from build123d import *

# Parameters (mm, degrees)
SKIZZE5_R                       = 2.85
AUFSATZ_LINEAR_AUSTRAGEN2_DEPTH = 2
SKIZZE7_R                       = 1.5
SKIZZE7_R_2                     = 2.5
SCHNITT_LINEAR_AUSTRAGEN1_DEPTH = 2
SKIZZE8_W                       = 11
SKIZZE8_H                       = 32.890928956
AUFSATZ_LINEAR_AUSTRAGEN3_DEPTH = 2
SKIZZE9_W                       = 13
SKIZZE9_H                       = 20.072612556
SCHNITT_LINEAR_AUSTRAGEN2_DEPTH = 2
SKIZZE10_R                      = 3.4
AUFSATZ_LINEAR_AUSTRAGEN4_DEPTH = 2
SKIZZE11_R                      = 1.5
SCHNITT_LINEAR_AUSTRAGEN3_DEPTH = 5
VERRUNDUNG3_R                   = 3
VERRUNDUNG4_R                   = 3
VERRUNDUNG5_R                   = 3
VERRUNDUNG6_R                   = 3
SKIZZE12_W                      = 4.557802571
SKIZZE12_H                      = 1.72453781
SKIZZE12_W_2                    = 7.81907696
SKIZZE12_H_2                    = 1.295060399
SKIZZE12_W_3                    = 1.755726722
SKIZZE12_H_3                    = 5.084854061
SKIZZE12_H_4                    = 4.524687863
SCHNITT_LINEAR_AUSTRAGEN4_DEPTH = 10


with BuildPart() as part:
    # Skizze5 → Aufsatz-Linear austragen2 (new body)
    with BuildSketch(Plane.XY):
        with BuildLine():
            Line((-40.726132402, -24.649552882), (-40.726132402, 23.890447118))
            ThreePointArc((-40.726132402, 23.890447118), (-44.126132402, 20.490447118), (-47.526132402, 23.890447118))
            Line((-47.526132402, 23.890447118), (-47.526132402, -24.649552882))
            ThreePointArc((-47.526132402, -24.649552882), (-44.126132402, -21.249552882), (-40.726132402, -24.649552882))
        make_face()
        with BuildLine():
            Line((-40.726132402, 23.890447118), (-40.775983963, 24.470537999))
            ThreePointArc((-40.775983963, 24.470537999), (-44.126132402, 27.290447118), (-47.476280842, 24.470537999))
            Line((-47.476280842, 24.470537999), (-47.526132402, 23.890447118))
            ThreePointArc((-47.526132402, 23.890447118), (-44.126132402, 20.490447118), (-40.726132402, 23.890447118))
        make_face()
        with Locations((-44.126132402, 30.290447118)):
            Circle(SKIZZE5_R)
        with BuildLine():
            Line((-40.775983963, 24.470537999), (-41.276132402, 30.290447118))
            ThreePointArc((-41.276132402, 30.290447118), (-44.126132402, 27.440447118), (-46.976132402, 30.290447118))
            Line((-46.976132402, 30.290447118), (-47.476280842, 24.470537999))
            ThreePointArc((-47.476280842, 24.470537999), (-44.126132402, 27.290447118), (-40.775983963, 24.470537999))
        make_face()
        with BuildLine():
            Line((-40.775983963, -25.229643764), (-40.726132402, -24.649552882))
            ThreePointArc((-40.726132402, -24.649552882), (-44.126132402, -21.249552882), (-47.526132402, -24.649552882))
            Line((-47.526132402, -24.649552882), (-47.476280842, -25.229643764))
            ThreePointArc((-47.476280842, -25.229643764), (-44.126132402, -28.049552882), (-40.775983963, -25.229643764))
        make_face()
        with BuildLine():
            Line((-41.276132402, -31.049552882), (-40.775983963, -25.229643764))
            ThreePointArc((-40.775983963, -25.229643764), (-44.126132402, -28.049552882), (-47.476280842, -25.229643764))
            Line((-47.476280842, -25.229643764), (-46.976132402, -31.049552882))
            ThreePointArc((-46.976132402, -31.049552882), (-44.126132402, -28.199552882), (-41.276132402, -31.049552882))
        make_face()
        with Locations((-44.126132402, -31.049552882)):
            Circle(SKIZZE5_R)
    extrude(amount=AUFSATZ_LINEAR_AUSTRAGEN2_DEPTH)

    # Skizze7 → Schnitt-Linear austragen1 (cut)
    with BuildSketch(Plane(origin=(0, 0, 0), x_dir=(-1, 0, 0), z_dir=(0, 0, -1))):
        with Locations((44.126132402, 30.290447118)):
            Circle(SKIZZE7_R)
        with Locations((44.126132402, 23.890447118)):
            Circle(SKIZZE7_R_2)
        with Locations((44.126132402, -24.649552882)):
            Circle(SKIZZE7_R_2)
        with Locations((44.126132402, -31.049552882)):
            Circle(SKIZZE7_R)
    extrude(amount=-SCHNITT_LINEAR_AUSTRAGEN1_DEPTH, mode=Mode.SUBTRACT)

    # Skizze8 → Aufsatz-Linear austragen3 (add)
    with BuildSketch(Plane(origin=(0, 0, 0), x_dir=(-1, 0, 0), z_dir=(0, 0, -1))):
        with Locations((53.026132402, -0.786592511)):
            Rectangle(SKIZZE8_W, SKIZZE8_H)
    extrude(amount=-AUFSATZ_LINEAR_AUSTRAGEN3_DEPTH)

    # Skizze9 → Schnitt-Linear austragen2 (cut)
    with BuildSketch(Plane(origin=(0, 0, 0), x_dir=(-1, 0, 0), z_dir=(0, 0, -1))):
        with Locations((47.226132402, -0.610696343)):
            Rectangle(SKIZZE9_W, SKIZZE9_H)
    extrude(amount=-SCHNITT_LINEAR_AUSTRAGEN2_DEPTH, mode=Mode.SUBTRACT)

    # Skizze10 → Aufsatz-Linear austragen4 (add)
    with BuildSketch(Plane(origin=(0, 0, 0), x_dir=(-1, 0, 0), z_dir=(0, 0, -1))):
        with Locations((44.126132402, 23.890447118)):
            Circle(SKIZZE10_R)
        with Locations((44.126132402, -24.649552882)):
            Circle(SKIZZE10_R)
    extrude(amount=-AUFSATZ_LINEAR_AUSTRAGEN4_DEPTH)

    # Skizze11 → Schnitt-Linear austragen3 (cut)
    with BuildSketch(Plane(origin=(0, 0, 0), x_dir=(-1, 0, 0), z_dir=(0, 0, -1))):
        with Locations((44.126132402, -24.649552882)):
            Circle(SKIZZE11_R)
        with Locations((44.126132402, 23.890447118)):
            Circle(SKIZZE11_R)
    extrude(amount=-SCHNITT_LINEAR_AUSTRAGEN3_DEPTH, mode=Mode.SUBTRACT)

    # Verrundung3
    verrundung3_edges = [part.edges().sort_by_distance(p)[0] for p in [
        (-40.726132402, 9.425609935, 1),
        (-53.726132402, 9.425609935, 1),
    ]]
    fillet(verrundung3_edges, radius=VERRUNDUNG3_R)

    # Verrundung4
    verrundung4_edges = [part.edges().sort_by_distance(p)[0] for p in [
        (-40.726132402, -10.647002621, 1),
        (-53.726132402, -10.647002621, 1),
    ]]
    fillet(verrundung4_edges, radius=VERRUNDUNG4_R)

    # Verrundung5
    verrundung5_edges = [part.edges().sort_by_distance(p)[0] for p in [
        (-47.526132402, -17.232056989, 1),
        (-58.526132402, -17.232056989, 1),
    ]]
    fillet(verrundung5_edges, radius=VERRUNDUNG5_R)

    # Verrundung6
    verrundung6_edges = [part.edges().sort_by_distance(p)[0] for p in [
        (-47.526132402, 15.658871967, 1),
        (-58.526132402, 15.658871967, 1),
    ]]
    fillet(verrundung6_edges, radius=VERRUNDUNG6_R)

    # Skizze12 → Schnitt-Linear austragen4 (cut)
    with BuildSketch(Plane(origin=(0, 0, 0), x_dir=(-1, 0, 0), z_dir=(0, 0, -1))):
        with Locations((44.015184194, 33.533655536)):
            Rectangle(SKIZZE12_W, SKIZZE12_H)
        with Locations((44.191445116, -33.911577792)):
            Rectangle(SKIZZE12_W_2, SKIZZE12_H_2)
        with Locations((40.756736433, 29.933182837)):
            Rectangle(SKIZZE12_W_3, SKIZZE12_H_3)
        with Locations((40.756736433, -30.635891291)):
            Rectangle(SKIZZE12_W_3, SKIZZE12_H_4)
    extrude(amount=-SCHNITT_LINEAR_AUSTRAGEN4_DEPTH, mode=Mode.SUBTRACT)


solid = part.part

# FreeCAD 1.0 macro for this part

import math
import FreeCAD as App
import Part
import Sketcher

V = App.Vector
Q = App.Units.Quantity


def edges_at(feature, points):
    """Names of the edges that pass closest to the given points."""
    edges = feature.Shape.Edges
    near = lambda p: min(range(len(edges)), key=lambda i: edges[i].distToShape(Part.Vertex(*p))[0])
    return sorted({f"Edge{near(p) + 1}" for p in points})

doc = App.newDocument("Part")
params = doc.addObject("Spreadsheet::Sheet", "Params")
for row, (alias, value) in enumerate([
    ("sketch1_radius", "2.85 mm"),
    ("sketch1_height", "48.54 mm"),
    ("pad1_length", "2 mm"),
    ("sketch2_diameter", "3 mm"),
    ("sketch2_diameter2", "5 mm"),
    ("pocket1_length", "2 mm"),
    ("sketch3_width", "11 mm"),
    ("pad2_length", "2 mm"),
    ("sketch4_width", "13 mm"),
    ("pocket2_length", "2 mm"),
    ("sketch5_diameter", "6.8 mm"),
    ("pad3_length", "2 mm"),
    ("sketch6_diameter", "3 mm"),
    ("pocket3_length", "5 mm"),
    ("fillet_radius", "3 mm"),
    ("fillet2_radius", "3 mm"),
    ("fillet3_radius", "3 mm"),
    ("fillet4_radius", "3 mm"),
    ("pocket4_length", "10 mm"),
], start=1):
    params.set(f"A{row}", alias)
    params.set(f"B{row}", "=" + value)
    params.setAlias(f"B{row}", alias)

body = doc.addObject("PartDesign::Body", "Body")

# Sketch on XY plane
sketch1 = body.newObject("Sketcher::SketchObject", "Sketch")
sketch1.AttachmentSupport = (doc.getObject("XY_Plane"), [""])
sketch1.MapMode = "FlatFace"
sketch1.addGeometry(Part.LineSegment(V(-40.7, -24.6, 0), V(-40.7, 23.9, 0)), False)
sketch1.addGeometry(Part.LineSegment(V(-40.7, 23.9, 0), V(-40.8, 24.5, 0)), False)
sketch1.addGeometry(Part.LineSegment(V(-40.8, 24.5, 0), V(-41.3, 30.3, 0)), False)
sketch1.addGeometry(Part.ArcOfCircle(Part.Circle(V(-44.1, 30.3, 0), V(0, 0, 1), 2.9), math.radians(0), math.radians(180)), False)
sketch1.addGeometry(Part.LineSegment(V(-47, 30.3, 0), V(-47.5, 24.5, 0)), False)
sketch1.addGeometry(Part.LineSegment(V(-47.5, 24.5, 0), V(-47.5, 23.9, 0)), False)
sketch1.addGeometry(Part.LineSegment(V(-47.5, 23.9, 0), V(-47.5, -24.6, 0)), False)
sketch1.addGeometry(Part.LineSegment(V(-47.5, -24.6, 0), V(-47.5, -25.2, 0)), False)
sketch1.addGeometry(Part.LineSegment(V(-47.5, -25.2, 0), V(-47, -31, 0)), False)
sketch1.addGeometry(Part.ArcOfCircle(Part.Circle(V(-44.1, -31, 0), V(0, 0, 1), 2.9), math.radians(180), math.radians(360)), False)
sketch1.addGeometry(Part.LineSegment(V(-41.3, -31, 0), V(-40.8, -25.2, 0)), False)
sketch1.addGeometry(Part.LineSegment(V(-40.8, -25.2, 0), V(-40.7, -24.6, 0)), False)
sketch1.addConstraint(Sketcher.Constraint("Coincident", 0, 2, 1, 1))
sketch1.addConstraint(Sketcher.Constraint("Coincident", 1, 2, 2, 1))
sketch1.addConstraint(Sketcher.Constraint("Coincident", 2, 2, 3, 1))
sketch1.addConstraint(Sketcher.Constraint("Coincident", 3, 2, 4, 1))
sketch1.addConstraint(Sketcher.Constraint("Coincident", 4, 2, 5, 1))
sketch1.addConstraint(Sketcher.Constraint("Coincident", 5, 2, 6, 1))
sketch1.addConstraint(Sketcher.Constraint("Coincident", 6, 2, 7, 1))
sketch1.addConstraint(Sketcher.Constraint("Coincident", 7, 2, 8, 1))
sketch1.addConstraint(Sketcher.Constraint("Coincident", 8, 2, 9, 1))
sketch1.addConstraint(Sketcher.Constraint("Coincident", 9, 2, 10, 1))
sketch1.addConstraint(Sketcher.Constraint("Coincident", 10, 2, 11, 1))
sketch1.addConstraint(Sketcher.Constraint("Coincident", 11, 2, 0, 1))
sketch1.addConstraint(Sketcher.Constraint("Vertical", 0))
sketch1.addConstraint(Sketcher.Constraint("Vertical", 6))
sketch1.addConstraint(Sketcher.Constraint("Equal", 3, 9))
sketch1.addConstraint(Sketcher.Constraint("Parallel", 1, 2))
sketch1.addConstraint(Sketcher.Constraint("Parallel", 4, 5))
sketch1.addConstraint(Sketcher.Constraint("Parallel", 2, 7))
sketch1.addConstraint(Sketcher.Constraint("Parallel", 7, 8))
sketch1.addConstraint(Sketcher.Constraint("Parallel", 5, 10))
sketch1.addConstraint(Sketcher.Constraint("Parallel", 10, 11))
sketch1.addConstraint(Sketcher.Constraint("Horizontal", 3, 3, 2, 2))
sketch1.addConstraint(Sketcher.Constraint("Horizontal", 2, 2, 3, 2))
sketch1.addConstraint(Sketcher.Constraint("Horizontal", 1, 2, 4, 2))
sketch1.addConstraint(Sketcher.Constraint("Horizontal", 0, 2, 5, 2))
sketch1.addConstraint(Sketcher.Constraint("Horizontal", 9, 3, 8, 2))
sketch1.addConstraint(Sketcher.Constraint("Horizontal", 8, 2, 9, 2))
sketch1.addConstraint(Sketcher.Constraint("Horizontal", 7, 2, 10, 2))
sketch1.addConstraint(Sketcher.Constraint("Horizontal", 6, 2, 11, 2))
sketch1.addConstraint(Sketcher.Constraint("Vertical", 3, 3, 9, 3))
sketch1.addConstraint(Sketcher.Constraint("Vertical", 4, 2, 7, 2))
sketch1.addConstraint(Sketcher.Constraint("Radius", 3, Q("2.85 mm")))
sketch1.addConstraint(Sketcher.Constraint("DistanceY", 0, 1, 0, 2, Q("48.54 mm")))
sketch1.addConstraint(Sketcher.Constraint("DistanceX", 3, 3, 0, 2, Q("3.4 mm")))
sketch1.addConstraint(Sketcher.Constraint("DistanceY", 0, 2, 3, 3, Q("6.4 mm")))
sketch1.addConstraint(Sketcher.Constraint("Distance", 1, Q("0.582229 mm")))
sketch1.addConstraint(Sketcher.Constraint("DistanceX", 4, 2, -1, 1, Q("47.476281 mm")))
sketch1.addConstraint(Sketcher.Constraint("DistanceY", -1, 1, 3, 3, Q("30.290447 mm")))
sketch1.setExpression("Constraints[31]", "Params.sketch1_radius")
sketch1.setExpression("Constraints[32]", "Params.sketch1_height")
pad1 = body.newObject("PartDesign::Pad", "Pad")
pad1.Profile = sketch1
pad1.setExpression("Length", "Params.pad1_length")

# Sketch on XY plane
sketch2 = body.newObject("Sketcher::SketchObject", "Sketch001")
sketch2.AttachmentSupport = (doc.getObject("XY_Plane"), [""])
sketch2.MapMode = "FlatFace"
sketch2.addGeometry(Part.Circle(V(-44.1, 30.3, 0), V(0, 0, 1), 1.5), False)
sketch2.addGeometry(Part.Circle(V(-44.1, 23.9, 0), V(0, 0, 1), 2.5), False)
sketch2.addGeometry(Part.Circle(V(-44.1, -24.6, 0), V(0, 0, 1), 2.5), False)
sketch2.addGeometry(Part.Circle(V(-44.1, -31, 0), V(0, 0, 1), 1.5), False)
sketch2.addConstraint(Sketcher.Constraint("Equal", 1, 2))
sketch2.addConstraint(Sketcher.Constraint("Equal", 0, 3))
sketch2.addConstraint(Sketcher.Constraint("Vertical", 0, 3, 1, 3))
sketch2.addConstraint(Sketcher.Constraint("Vertical", 1, 3, 2, 3))
sketch2.addConstraint(Sketcher.Constraint("Vertical", 2, 3, 3, 3))
sketch2.addConstraint(Sketcher.Constraint("Diameter", 0, Q("3 mm")))
sketch2.addConstraint(Sketcher.Constraint("Diameter", 1, Q("5 mm")))
sketch2.addConstraint(Sketcher.Constraint("DistanceY", 1, 3, 0, 3, Q("6.4 mm")))
sketch2.addConstraint(Sketcher.Constraint("DistanceY", 3, 3, 2, 3, Q("6.4 mm")))
sketch2.addConstraint(Sketcher.Constraint("DistanceY", 2, 3, 1, 3, Q("48.54 mm")))
sketch2.addConstraint(Sketcher.Constraint("DistanceX", 0, 3, -1, 1, Q("44.126132 mm")))
sketch2.addConstraint(Sketcher.Constraint("DistanceY", -1, 1, 0, 3, Q("30.290447 mm")))
sketch2.setExpression("Constraints[5]", "Params.sketch2_diameter")
sketch2.setExpression("Constraints[6]", "Params.sketch2_diameter2")
pocket1 = body.newObject("PartDesign::Pocket", "Pocket")
pocket1.Profile = sketch2
pocket1.setExpression("Length", "Params.pocket1_length")
pocket1.Reversed = True

# Sketch on XY plane
sketch3 = body.newObject("Sketcher::SketchObject", "Sketch002")
sketch3.AttachmentSupport = (doc.getObject("XY_Plane"), [""])
sketch3.MapMode = "FlatFace"
sketch3.addGeometry(Part.LineSegment(V(-48, 16, 0), V(-48, -17, 0)), False)
sketch3.addGeometry(Part.LineSegment(V(-48, -17, 0), V(-59, -17, 0)), False)
sketch3.addGeometry(Part.LineSegment(V(-59, -17, 0), V(-59, 16, 0)), False)
sketch3.addGeometry(Part.LineSegment(V(-59, 16, 0), V(-48, 16, 0)), False)
sketch3.addConstraint(Sketcher.Constraint("Coincident", 0, 2, 1, 1))
sketch3.addConstraint(Sketcher.Constraint("Coincident", 1, 2, 2, 1))
sketch3.addConstraint(Sketcher.Constraint("Coincident", 2, 2, 3, 1))
sketch3.addConstraint(Sketcher.Constraint("Coincident", 3, 2, 0, 1))
sketch3.addConstraint(Sketcher.Constraint("Vertical", 0))
sketch3.addConstraint(Sketcher.Constraint("Horizontal", 1))
sketch3.addConstraint(Sketcher.Constraint("Vertical", 2))
sketch3.addConstraint(Sketcher.Constraint("Horizontal", 3))
sketch3.addConstraint(Sketcher.Constraint("DistanceX", 1, 2, 1, 1, Q("11 mm")))
sketch3.addConstraint(Sketcher.Constraint("DistanceY", 0, 2, 0, 1, Q("32.890929 mm")))
sketch3.addConstraint(Sketcher.Constraint("DistanceY", -1, 1, 2, 2, Q("15.658872 mm")))
sketch3.addConstraint(Sketcher.Constraint("DistanceX", 0, 2, -1, 1, Q("47.526132 mm")))
sketch3.setExpression("Constraints[8]", "Params.sketch3_width")
pad2 = body.newObject("PartDesign::Pad", "Pad001")
pad2.Profile = sketch3
pad2.setExpression("Length", "Params.pad2_length")

# Sketch on XY plane
sketch4 = body.newObject("Sketcher::SketchObject", "Sketch003")
sketch4.AttachmentSupport = (doc.getObject("XY_Plane"), [""])
sketch4.MapMode = "FlatFace"
sketch4.addGeometry(Part.LineSegment(V(-41, 9, 0), V(-41, -11, 0)), False)
sketch4.addGeometry(Part.LineSegment(V(-41, -11, 0), V(-54, -11, 0)), False)
sketch4.addGeometry(Part.LineSegment(V(-54, -11, 0), V(-54, 9, 0)), False)
sketch4.addGeometry(Part.LineSegment(V(-54, 9, 0), V(-41, 9, 0)), False)
sketch4.addConstraint(Sketcher.Constraint("Coincident", 0, 2, 1, 1))
sketch4.addConstraint(Sketcher.Constraint("Coincident", 1, 2, 2, 1))
sketch4.addConstraint(Sketcher.Constraint("Coincident", 2, 2, 3, 1))
sketch4.addConstraint(Sketcher.Constraint("Coincident", 3, 2, 0, 1))
sketch4.addConstraint(Sketcher.Constraint("Vertical", 0))
sketch4.addConstraint(Sketcher.Constraint("Horizontal", 1))
sketch4.addConstraint(Sketcher.Constraint("Vertical", 2))
sketch4.addConstraint(Sketcher.Constraint("Horizontal", 3))
sketch4.addConstraint(Sketcher.Constraint("DistanceX", 1, 2, 1, 1, Q("13 mm")))
sketch4.addConstraint(Sketcher.Constraint("DistanceY", 0, 2, 0, 1, Q("20.072613 mm")))
sketch4.addConstraint(Sketcher.Constraint("DistanceY", -1, 1, 2, 2, Q("9.42561 mm")))
sketch4.addConstraint(Sketcher.Constraint("DistanceX", 0, 2, -1, 1, Q("40.726132 mm")))
sketch4.setExpression("Constraints[8]", "Params.sketch4_width")
pocket2 = body.newObject("PartDesign::Pocket", "Pocket001")
pocket2.Profile = sketch4
pocket2.setExpression("Length", "Params.pocket2_length")
pocket2.Reversed = True

# Sketch on XY plane
sketch5 = body.newObject("Sketcher::SketchObject", "Sketch004")
sketch5.AttachmentSupport = (doc.getObject("XY_Plane"), [""])
sketch5.MapMode = "FlatFace"
sketch5.addGeometry(Part.Circle(V(-44.1, 23.9, 0), V(0, 0, 1), 3.4), False)
sketch5.addGeometry(Part.Circle(V(-44.1, -24.6, 0), V(0, 0, 1), 3.4), False)
sketch5.addConstraint(Sketcher.Constraint("Equal", 0, 1))
sketch5.addConstraint(Sketcher.Constraint("Vertical", 0, 3, 1, 3))
sketch5.addConstraint(Sketcher.Constraint("Diameter", 0, Q("6.8 mm")))
sketch5.addConstraint(Sketcher.Constraint("DistanceY", 1, 3, 0, 3, Q("48.54 mm")))
sketch5.addConstraint(Sketcher.Constraint("DistanceX", 0, 3, -1, 1, Q("44.126132 mm")))
sketch5.addConstraint(Sketcher.Constraint("DistanceY", -1, 1, 0, 3, Q("23.890447 mm")))
sketch5.setExpression("Constraints[2]", "Params.sketch5_diameter")
pad3 = body.newObject("PartDesign::Pad", "Pad002")
pad3.Profile = sketch5
pad3.setExpression("Length", "Params.pad3_length")

# Sketch on XY plane
sketch6 = body.newObject("Sketcher::SketchObject", "Sketch005")
sketch6.AttachmentSupport = (doc.getObject("XY_Plane"), [""])
sketch6.MapMode = "FlatFace"
sketch6.addGeometry(Part.Circle(V(-44.1, -24.6, 0), V(0, 0, 1), 1.5), False)
sketch6.addGeometry(Part.Circle(V(-44.1, 23.9, 0), V(0, 0, 1), 1.5), False)
sketch6.addConstraint(Sketcher.Constraint("Equal", 0, 1))
sketch6.addConstraint(Sketcher.Constraint("Vertical", 0, 3, 1, 3))
sketch6.addConstraint(Sketcher.Constraint("Diameter", 0, Q("3 mm")))
sketch6.addConstraint(Sketcher.Constraint("DistanceY", 0, 3, 1, 3, Q("48.54 mm")))
sketch6.addConstraint(Sketcher.Constraint("DistanceX", 0, 3, -1, 1, Q("44.126132 mm")))
sketch6.addConstraint(Sketcher.Constraint("DistanceY", 0, 3, -1, 1, Q("24.649553 mm")))
sketch6.setExpression("Constraints[2]", "Params.sketch6_diameter")
pocket3 = body.newObject("PartDesign::Pocket", "Pocket002")
pocket3.Profile = sketch6
pocket3.setExpression("Length", "Params.pocket3_length")
pocket3.Reversed = True
doc.recompute()

fillet = body.newObject("PartDesign::Fillet", "Fillet")
fillet.Base = (pocket3, edges_at(pocket3, [(-40.726, 9.426, 1), (-53.726, 9.426, 1)]))
fillet.setExpression("Radius", "Params.fillet_radius")
doc.recompute()

fillet2 = body.newObject("PartDesign::Fillet", "Fillet001")
fillet2.Base = (fillet, edges_at(fillet, [(-40.726, -10.647, 1), (-53.726, -10.647, 1)]))
fillet2.setExpression("Radius", "Params.fillet2_radius")
doc.recompute()

fillet3 = body.newObject("PartDesign::Fillet", "Fillet002")
fillet3.Base = (fillet2, edges_at(fillet2, [(-47.526, -17.232, 1), (-58.526, -17.232, 1)]))
fillet3.setExpression("Radius", "Params.fillet3_radius")
doc.recompute()

fillet4 = body.newObject("PartDesign::Fillet", "Fillet003")
fillet4.Base = (fillet3, edges_at(fillet3, [(-47.526, 15.659, 1), (-58.526, 15.659, 1)]))
fillet4.setExpression("Radius", "Params.fillet4_radius")

# Sketch on XY plane
sketch7 = body.newObject("Sketcher::SketchObject", "Sketch006")
sketch7.AttachmentSupport = (doc.getObject("XY_Plane"), [""])
sketch7.MapMode = "FlatFace"
sketch7.addGeometry(Part.LineSegment(V(-41.7, 34.4, 0), V(-41.7, 32.7, 0)), False)
sketch7.addGeometry(Part.LineSegment(V(-41.7, 32.7, 0), V(-46.3, 32.7, 0)), False)
sketch7.addGeometry(Part.LineSegment(V(-46.3, 32.7, 0), V(-46.3, 34.4, 0)), False)
sketch7.addGeometry(Part.LineSegment(V(-46.3, 34.4, 0), V(-41.7, 34.4, 0)), False)
sketch7.addGeometry(Part.LineSegment(V(-40.3, -33.3, 0), V(-40.3, -34.6, 0)), False)
sketch7.addGeometry(Part.LineSegment(V(-40.3, -34.6, 0), V(-48.1, -34.6, 0)), False)
sketch7.addGeometry(Part.LineSegment(V(-48.1, -34.6, 0), V(-48.1, -33.3, 0)), False)
sketch7.addGeometry(Part.LineSegment(V(-48.1, -33.3, 0), V(-40.3, -33.3, 0)), False)
sketch7.addGeometry(Part.LineSegment(V(-39.9, 32.5, 0), V(-39.9, 27.4, 0)), False)
sketch7.addGeometry(Part.LineSegment(V(-39.9, 27.4, 0), V(-41.6, 27.4, 0)), False)
sketch7.addGeometry(Part.LineSegment(V(-41.6, 27.4, 0), V(-41.6, 32.5, 0)), False)
sketch7.addGeometry(Part.LineSegment(V(-41.6, 32.5, 0), V(-39.9, 32.5, 0)), False)
sketch7.addGeometry(Part.LineSegment(V(-39.9, -28.4, 0), V(-39.9, -32.9, 0)), False)
sketch7.addGeometry(Part.LineSegment(V(-39.9, -32.9, 0), V(-41.6, -32.9, 0)), False)
sketch7.addGeometry(Part.LineSegment(V(-41.6, -32.9, 0), V(-41.6, -28.4, 0)), False)
sketch7.addGeometry(Part.LineSegment(V(-41.6, -28.4, 0), V(-39.9, -28.4, 0)), False)
sketch7.addConstraint(Sketcher.Constraint("Coincident", 0, 2, 1, 1))
sketch7.addConstraint(Sketcher.Constraint("Coincident", 1, 2, 2, 1))
sketch7.addConstraint(Sketcher.Constraint("Coincident", 2, 2, 3, 1))
sketch7.addConstraint(Sketcher.Constraint("Coincident", 3, 2, 0, 1))
sketch7.addConstraint(Sketcher.Constraint("Coincident", 4, 2, 5, 1))
sketch7.addConstraint(Sketcher.Constraint("Coincident", 5, 2, 6, 1))
sketch7.addConstraint(Sketcher.Constraint("Coincident", 6, 2, 7, 1))
sketch7.addConstraint(Sketcher.Constraint("Coincident", 7, 2, 4, 1))
sketch7.addConstraint(Sketcher.Constraint("Coincident", 8, 2, 9, 1))
sketch7.addConstraint(Sketcher.Constraint("Coincident", 9, 2, 10, 1))
sketch7.addConstraint(Sketcher.Constraint("Coincident", 10, 2, 11, 1))
sketch7.addConstraint(Sketcher.Constraint("Coincident", 11, 2, 8, 1))
sketch7.addConstraint(Sketcher.Constraint("Coincident", 12, 2, 13, 1))
sketch7.addConstraint(Sketcher.Constraint("Coincident", 13, 2, 14, 1))
sketch7.addConstraint(Sketcher.Constraint("Coincident", 14, 2, 15, 1))
sketch7.addConstraint(Sketcher.Constraint("Coincident", 15, 2, 12, 1))
sketch7.addConstraint(Sketcher.Constraint("Vertical", 0))
sketch7.addConstraint(Sketcher.Constraint("Horizontal", 1))
sketch7.addConstraint(Sketcher.Constraint("Vertical", 2))
sketch7.addConstraint(Sketcher.Constraint("Horizontal", 3))
sketch7.addConstraint(Sketcher.Constraint("Vertical", 4))
sketch7.addConstraint(Sketcher.Constraint("Horizontal", 5))
sketch7.addConstraint(Sketcher.Constraint("Vertical", 6))
sketch7.addConstraint(Sketcher.Constraint("Horizontal", 7))
sketch7.addConstraint(Sketcher.Constraint("Vertical", 8))
sketch7.addConstraint(Sketcher.Constraint("Horizontal", 9))
sketch7.addConstraint(Sketcher.Constraint("Vertical", 10))
sketch7.addConstraint(Sketcher.Constraint("Horizontal", 11))
sketch7.addConstraint(Sketcher.Constraint("Vertical", 12))
sketch7.addConstraint(Sketcher.Constraint("Horizontal", 13))
sketch7.addConstraint(Sketcher.Constraint("Vertical", 14))
sketch7.addConstraint(Sketcher.Constraint("Horizontal", 15))
sketch7.addConstraint(Sketcher.Constraint("Vertical", 11, 2, 12, 2))
sketch7.addConstraint(Sketcher.Constraint("Vertical", 10, 2, 13, 2))
sketch7.addConstraint(Sketcher.Constraint("DistanceY", 4, 2, 4, 1, Q("1.29506 mm")))
sketch7.addConstraint(Sketcher.Constraint("DistanceX", 9, 2, -1, 1, Q("41.6346 mm")))
sketch7.addConstraint(Sketcher.Constraint("DistanceX", 5, 2, 1, 2, Q("1.806898 mm")))
sketch7.addConstraint(Sketcher.Constraint("DistanceX", 5, 2, 0, 2, Q("6.364701 mm")))
sketch7.addConstraint(Sketcher.Constraint("DistanceY", 7, 2, 14, 2, Q("4.8905 mm")))
sketch7.addConstraint(Sketcher.Constraint("DistanceX", 5, 2, 5, 1, Q("7.819077 mm")))
sketch7.addConstraint(Sketcher.Constraint("DistanceX", 9, 2, 9, 1, Q("1.755727 mm")))
sketch7.addConstraint(Sketcher.Constraint("DistanceY", 0, 2, 0, 1, Q("1.724538 mm")))
sketch7.addConstraint(Sketcher.Constraint("DistanceY", 8, 2, 8, 1, Q("5.084854 mm")))
sketch7.addConstraint(Sketcher.Constraint("DistanceY", 12, 2, 12, 1, Q("4.524688 mm")))
sketch7.addConstraint(Sketcher.Constraint("DistanceY", -1, 1, 10, 2, Q("32.47561 mm")))
sketch7.addConstraint(Sketcher.Constraint("DistanceX", 0, 2, 8, 2, Q("1.85741 mm")))
sketch7.addConstraint(Sketcher.Constraint("DistanceY", 8, 2, 0, 2, Q("5.280631 mm")))
sketch7.addConstraint(Sketcher.Constraint("DistanceY", 12, 2, 8, 2, Q("60.288991 mm")))
pocket4 = body.newObject("PartDesign::Pocket", "Pocket003")
pocket4.Profile = sketch7
pocket4.setExpression("Length", "Params.pocket4_length")
pocket4.Reversed = True

doc.recompute()
